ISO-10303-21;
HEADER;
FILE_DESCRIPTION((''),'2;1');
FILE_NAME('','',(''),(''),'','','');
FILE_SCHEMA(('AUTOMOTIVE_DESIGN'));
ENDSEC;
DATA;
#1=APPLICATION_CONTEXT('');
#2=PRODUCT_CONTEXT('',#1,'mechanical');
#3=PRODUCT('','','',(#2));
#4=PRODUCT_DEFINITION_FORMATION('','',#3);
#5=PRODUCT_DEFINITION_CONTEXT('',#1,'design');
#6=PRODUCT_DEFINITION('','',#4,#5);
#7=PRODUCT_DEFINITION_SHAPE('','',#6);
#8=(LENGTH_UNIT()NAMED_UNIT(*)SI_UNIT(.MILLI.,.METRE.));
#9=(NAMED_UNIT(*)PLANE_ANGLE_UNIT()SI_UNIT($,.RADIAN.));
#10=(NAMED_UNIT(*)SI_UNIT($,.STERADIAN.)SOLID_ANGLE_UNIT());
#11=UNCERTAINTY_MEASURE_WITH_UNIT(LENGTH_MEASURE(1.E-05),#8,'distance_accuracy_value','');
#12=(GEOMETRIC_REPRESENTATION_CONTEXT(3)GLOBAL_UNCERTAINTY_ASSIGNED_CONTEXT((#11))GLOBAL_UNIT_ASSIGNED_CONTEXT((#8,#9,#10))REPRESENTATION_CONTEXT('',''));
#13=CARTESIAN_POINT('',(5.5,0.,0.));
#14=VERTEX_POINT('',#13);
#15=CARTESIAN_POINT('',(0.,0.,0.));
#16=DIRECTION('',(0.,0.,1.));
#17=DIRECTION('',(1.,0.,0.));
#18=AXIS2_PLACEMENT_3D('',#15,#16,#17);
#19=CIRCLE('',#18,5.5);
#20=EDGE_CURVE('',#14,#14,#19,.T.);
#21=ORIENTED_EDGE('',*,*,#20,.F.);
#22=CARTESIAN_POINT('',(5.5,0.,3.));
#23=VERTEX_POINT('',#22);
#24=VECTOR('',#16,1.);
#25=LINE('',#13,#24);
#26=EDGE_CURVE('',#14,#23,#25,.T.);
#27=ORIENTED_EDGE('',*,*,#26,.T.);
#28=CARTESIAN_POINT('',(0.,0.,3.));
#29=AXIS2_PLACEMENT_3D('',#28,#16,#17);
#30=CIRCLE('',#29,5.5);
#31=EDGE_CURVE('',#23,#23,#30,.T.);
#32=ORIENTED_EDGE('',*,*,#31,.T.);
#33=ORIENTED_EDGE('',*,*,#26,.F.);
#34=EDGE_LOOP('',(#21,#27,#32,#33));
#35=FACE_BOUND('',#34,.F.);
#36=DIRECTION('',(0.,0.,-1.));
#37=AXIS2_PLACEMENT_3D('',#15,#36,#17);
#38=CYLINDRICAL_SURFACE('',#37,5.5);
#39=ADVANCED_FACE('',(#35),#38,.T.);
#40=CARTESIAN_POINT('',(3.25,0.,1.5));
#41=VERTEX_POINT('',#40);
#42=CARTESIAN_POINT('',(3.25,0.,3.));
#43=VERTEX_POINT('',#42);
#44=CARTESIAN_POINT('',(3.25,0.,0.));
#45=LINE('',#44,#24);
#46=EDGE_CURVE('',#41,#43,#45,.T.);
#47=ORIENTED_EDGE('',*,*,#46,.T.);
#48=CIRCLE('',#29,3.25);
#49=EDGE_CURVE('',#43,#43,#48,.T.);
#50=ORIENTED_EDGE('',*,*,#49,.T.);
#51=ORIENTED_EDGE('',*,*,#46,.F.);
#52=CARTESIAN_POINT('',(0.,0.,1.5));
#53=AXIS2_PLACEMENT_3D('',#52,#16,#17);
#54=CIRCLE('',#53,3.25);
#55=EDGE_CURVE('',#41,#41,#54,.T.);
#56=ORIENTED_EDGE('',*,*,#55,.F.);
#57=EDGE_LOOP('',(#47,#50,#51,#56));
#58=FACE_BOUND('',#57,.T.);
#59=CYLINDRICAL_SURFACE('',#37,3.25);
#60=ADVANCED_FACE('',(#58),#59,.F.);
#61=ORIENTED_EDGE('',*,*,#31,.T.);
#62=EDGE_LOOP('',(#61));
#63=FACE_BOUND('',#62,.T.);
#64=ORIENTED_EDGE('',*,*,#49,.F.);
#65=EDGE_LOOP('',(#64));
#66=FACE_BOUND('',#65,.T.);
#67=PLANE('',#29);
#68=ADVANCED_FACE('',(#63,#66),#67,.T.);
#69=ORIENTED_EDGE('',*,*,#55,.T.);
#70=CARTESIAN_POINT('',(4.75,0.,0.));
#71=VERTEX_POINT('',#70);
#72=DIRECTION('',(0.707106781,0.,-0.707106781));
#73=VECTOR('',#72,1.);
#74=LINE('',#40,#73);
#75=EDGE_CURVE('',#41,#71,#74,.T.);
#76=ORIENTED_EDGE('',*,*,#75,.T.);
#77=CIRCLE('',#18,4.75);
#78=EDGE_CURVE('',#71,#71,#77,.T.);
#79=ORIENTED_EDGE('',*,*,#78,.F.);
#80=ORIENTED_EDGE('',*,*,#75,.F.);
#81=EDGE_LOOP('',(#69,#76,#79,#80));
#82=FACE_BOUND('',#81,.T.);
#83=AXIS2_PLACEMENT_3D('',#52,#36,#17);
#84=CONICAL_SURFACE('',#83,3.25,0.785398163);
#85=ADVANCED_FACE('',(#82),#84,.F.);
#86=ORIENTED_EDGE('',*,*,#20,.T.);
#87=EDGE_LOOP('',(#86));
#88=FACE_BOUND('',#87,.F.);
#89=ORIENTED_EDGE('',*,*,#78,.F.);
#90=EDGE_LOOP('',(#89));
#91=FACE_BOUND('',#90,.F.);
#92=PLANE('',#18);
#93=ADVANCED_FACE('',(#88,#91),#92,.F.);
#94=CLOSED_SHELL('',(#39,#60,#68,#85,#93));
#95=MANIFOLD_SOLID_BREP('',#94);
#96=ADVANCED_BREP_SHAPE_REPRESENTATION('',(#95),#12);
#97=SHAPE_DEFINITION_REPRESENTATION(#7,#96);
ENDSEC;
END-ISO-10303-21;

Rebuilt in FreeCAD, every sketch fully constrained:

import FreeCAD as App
import Part
import Sketcher
from FreeCAD import Vector
Q = App.Units.Quantity


def edges_at(feature, points):
    """Names of the edges that pass closest to the given points."""
    edges = feature.Shape.Edges
    near = lambda p: min(range(len(edges)), key=lambda i: edges[i].distToShape(Part.Vertex(*p))[0])
    return sorted({f"Edge{near(p) + 1}" for p in points})

doc = App.newDocument("Part")
body = doc.addObject("PartDesign::Body", "Body")

# Sketch on XY plane
sketch1 = doc.addObject("Sketcher::SketchObject", "Sketch")
body.addObject(sketch1)
sketch1.AttachmentSupport = (doc.XY_Plane, [""])
sketch1.MapMode = "FlatFace"
sketch1.addGeometry([
    Part.Circle(Vector(0, 0, 0), Vector(0, 0, 1), 5.5),
    Part.Circle(Vector(0, 0, 0), Vector(0, 0, 1), 3.2),
], False)
sketch1.addConstraint([
    Sketcher.Constraint("Coincident", 0, 3, -1, 1),
    Sketcher.Constraint("Coincident", 1, 3, -1, 1),
    Sketcher.Constraint("Diameter", 0, Q("11 mm")),
    Sketcher.Constraint("Diameter", 1, Q("6.5 mm")),
])
pad1 = doc.addObject("PartDesign::Pad", "Pad")
body.addObject(pad1)
pad1.Profile = sketch1
pad1.Length = 3
doc.recompute()

chamfer = doc.addObject("PartDesign::Chamfer", "Chamfer")
body.addObject(chamfer)
chamfer.Base = (pad1, edges_at(pad1, [(-3.03, 1.175, 0)]))
chamfer.Size = 1.5

doc.recompute()
